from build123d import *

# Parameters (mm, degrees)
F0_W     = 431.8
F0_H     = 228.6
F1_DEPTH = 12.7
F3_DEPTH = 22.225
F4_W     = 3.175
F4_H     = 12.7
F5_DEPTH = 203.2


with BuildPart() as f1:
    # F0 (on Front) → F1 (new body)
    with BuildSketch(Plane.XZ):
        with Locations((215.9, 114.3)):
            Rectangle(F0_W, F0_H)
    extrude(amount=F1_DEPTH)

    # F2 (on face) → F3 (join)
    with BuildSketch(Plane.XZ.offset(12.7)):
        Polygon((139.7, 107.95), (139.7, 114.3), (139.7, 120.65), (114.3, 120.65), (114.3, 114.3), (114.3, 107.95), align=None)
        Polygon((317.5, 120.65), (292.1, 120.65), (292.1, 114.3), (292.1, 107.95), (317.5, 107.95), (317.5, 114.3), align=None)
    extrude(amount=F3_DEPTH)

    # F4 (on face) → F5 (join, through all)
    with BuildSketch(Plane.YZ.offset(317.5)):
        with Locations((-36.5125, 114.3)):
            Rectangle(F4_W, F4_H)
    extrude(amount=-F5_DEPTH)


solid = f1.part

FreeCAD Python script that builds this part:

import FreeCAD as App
import Part
import Sketcher
Q = App.Units.Quantity


def add_polygon(sketch, points):
    """Adds a closed chain of lines whose ends are joined by coincident constraints."""
    first, n = sketch.GeometryCount, len(points)
    for a, b in zip(points, points[1:] + points[:1]):
        sketch.addGeometry(Part.LineSegment(App.Vector(*a, 0), App.Vector(*b, 0)), False)
    for i in range(n):
        sketch.addConstraint(Sketcher.Constraint("Coincident", first + i, 2, first + (i + 1) % n, 1))

doc = App.newDocument("Part")
body = doc.addObject("PartDesign::Body", "Body")

# Sketch on XZ plane
sketch1 = body.newObject("Sketcher::SketchObject", "Sketch")
sketch1.AttachmentSupport = (doc.getObject("XZ_Plane"), [""])
sketch1.MapMode = "FlatFace"
add_polygon(sketch1, [(0, 229), (0, 0), (432, 0), (432, 229)])  # lines 0-3
sketch1.addConstraint(Sketcher.Constraint("Vertical", 0))
sketch1.addConstraint(Sketcher.Constraint("Horizontal", 1))
sketch1.addConstraint(Sketcher.Constraint("Vertical", 2))
sketch1.addConstraint(Sketcher.Constraint("Horizontal", 3))
sketch1.addConstraint(Sketcher.Constraint("Coincident", 0, 2, -1, 1))
sketch1.addConstraint(Sketcher.Constraint("DistanceX", 1, 1, 1, 2, Q("17 in")))
sketch1.addConstraint(Sketcher.Constraint("DistanceY", 0, 2, 0, 1, Q("9 in")))
pad1 = body.newObject("PartDesign::Pad", "Pad")
pad1.Profile = sketch1
pad1.Length = Q("0.5 in")

# Sketch on XZ plane
sketch2 = body.newObject("Sketcher::SketchObject", "Sketch001")
sketch2.AttachmentSupport = (doc.getObject("XZ_Plane"), [""])
sketch2.MapMode = "FlatFace"
sketch2.AttachmentOffset = App.Placement(App.Vector(0, 0, 0.5 * 25.4), App.Rotation())
add_polygon(sketch2, [(140, 108), (140, 121), (114, 121), (114, 108)])  # lines 0-3
add_polygon(sketch2, [(318, 121), (292, 121), (292, 108), (318, 108)])  # lines 4-7
sketch2.addConstraint(Sketcher.Constraint("Vertical", 0))
sketch2.addConstraint(Sketcher.Constraint("Horizontal", 1))
sketch2.addConstraint(Sketcher.Constraint("Vertical", 2))
sketch2.addConstraint(Sketcher.Constraint("Horizontal", 3))
sketch2.addConstraint(Sketcher.Constraint("Horizontal", 4))
sketch2.addConstraint(Sketcher.Constraint("Vertical", 5))
sketch2.addConstraint(Sketcher.Constraint("Horizontal", 6))
sketch2.addConstraint(Sketcher.Constraint("Vertical", 7))
sketch2.addConstraint(Sketcher.Constraint("Horizontal", 1, 2, 4, 2))
sketch2.addConstraint(Sketcher.Constraint("Horizontal", 3, 2, 5, 2))
sketch2.addConstraint(Sketcher.Constraint("Equal", 3, 4))
sketch2.addConstraint(Sketcher.Constraint("DistanceX", 1, 2, 1, 1, Q("1 in")))
sketch2.addConstraint(Sketcher.Constraint("DistanceY", 0, 1, 0, 2, Q("0.5 in")))
sketch2.addConstraint(Sketcher.Constraint("DistanceX", 0, 2, 4, 2, Q("6 in")))
sketch2.addConstraint(Sketcher.Constraint("DistanceX", -1, 1, 0, 2, Q("5.5 in")))
sketch2.addConstraint(Sketcher.Constraint("DistanceY", -1, 1, 0, 2, Q("4.75 in")))
pad2 = body.newObject("PartDesign::Pad", "Pad001")
pad2.Profile = sketch2
pad2.Length = Q("0.875 in")

# Sketch on YZ plane
sketch3 = body.newObject("Sketcher::SketchObject", "Sketch002")
sketch3.AttachmentSupport = (doc.getObject("YZ_Plane"), [""])
sketch3.MapMode = "FlatFace"
sketch3.AttachmentOffset = App.Placement(App.Vector(0, 0, 12.5 * 25.4), App.Rotation())
add_polygon(sketch3, [(-38.1, 120.7), (-38.1, 108), (-34.9, 108), (-34.9, 120.7)])  # lines 0-3
sketch3.addConstraint(Sketcher.Constraint("Vertical", 0))
sketch3.addConstraint(Sketcher.Constraint("Horizontal", 1))
sketch3.addConstraint(Sketcher.Constraint("Vertical", 2))
sketch3.addConstraint(Sketcher.Constraint("Horizontal", 3))
sketch3.addConstraint(Sketcher.Constraint("DistanceY", 0, 2, 0, 1, Q("0.5 in")))
sketch3.addConstraint(Sketcher.Constraint("DistanceX", 0, 2, -1, 1, Q("1.5 in")))
sketch3.addConstraint(Sketcher.Constraint("DistanceX", 1, 1, 1, 2, Q("0.125 in")))
sketch3.addConstraint(Sketcher.Constraint("DistanceY", -1, 1, 0, 2, Q("4.25 in")))
pad3 = body.newObject("PartDesign::Pad", "Pad002")
pad3.Profile = sketch3
pad3.Length = Q("8 in")
pad3.Reversed = True

doc.recompute()
